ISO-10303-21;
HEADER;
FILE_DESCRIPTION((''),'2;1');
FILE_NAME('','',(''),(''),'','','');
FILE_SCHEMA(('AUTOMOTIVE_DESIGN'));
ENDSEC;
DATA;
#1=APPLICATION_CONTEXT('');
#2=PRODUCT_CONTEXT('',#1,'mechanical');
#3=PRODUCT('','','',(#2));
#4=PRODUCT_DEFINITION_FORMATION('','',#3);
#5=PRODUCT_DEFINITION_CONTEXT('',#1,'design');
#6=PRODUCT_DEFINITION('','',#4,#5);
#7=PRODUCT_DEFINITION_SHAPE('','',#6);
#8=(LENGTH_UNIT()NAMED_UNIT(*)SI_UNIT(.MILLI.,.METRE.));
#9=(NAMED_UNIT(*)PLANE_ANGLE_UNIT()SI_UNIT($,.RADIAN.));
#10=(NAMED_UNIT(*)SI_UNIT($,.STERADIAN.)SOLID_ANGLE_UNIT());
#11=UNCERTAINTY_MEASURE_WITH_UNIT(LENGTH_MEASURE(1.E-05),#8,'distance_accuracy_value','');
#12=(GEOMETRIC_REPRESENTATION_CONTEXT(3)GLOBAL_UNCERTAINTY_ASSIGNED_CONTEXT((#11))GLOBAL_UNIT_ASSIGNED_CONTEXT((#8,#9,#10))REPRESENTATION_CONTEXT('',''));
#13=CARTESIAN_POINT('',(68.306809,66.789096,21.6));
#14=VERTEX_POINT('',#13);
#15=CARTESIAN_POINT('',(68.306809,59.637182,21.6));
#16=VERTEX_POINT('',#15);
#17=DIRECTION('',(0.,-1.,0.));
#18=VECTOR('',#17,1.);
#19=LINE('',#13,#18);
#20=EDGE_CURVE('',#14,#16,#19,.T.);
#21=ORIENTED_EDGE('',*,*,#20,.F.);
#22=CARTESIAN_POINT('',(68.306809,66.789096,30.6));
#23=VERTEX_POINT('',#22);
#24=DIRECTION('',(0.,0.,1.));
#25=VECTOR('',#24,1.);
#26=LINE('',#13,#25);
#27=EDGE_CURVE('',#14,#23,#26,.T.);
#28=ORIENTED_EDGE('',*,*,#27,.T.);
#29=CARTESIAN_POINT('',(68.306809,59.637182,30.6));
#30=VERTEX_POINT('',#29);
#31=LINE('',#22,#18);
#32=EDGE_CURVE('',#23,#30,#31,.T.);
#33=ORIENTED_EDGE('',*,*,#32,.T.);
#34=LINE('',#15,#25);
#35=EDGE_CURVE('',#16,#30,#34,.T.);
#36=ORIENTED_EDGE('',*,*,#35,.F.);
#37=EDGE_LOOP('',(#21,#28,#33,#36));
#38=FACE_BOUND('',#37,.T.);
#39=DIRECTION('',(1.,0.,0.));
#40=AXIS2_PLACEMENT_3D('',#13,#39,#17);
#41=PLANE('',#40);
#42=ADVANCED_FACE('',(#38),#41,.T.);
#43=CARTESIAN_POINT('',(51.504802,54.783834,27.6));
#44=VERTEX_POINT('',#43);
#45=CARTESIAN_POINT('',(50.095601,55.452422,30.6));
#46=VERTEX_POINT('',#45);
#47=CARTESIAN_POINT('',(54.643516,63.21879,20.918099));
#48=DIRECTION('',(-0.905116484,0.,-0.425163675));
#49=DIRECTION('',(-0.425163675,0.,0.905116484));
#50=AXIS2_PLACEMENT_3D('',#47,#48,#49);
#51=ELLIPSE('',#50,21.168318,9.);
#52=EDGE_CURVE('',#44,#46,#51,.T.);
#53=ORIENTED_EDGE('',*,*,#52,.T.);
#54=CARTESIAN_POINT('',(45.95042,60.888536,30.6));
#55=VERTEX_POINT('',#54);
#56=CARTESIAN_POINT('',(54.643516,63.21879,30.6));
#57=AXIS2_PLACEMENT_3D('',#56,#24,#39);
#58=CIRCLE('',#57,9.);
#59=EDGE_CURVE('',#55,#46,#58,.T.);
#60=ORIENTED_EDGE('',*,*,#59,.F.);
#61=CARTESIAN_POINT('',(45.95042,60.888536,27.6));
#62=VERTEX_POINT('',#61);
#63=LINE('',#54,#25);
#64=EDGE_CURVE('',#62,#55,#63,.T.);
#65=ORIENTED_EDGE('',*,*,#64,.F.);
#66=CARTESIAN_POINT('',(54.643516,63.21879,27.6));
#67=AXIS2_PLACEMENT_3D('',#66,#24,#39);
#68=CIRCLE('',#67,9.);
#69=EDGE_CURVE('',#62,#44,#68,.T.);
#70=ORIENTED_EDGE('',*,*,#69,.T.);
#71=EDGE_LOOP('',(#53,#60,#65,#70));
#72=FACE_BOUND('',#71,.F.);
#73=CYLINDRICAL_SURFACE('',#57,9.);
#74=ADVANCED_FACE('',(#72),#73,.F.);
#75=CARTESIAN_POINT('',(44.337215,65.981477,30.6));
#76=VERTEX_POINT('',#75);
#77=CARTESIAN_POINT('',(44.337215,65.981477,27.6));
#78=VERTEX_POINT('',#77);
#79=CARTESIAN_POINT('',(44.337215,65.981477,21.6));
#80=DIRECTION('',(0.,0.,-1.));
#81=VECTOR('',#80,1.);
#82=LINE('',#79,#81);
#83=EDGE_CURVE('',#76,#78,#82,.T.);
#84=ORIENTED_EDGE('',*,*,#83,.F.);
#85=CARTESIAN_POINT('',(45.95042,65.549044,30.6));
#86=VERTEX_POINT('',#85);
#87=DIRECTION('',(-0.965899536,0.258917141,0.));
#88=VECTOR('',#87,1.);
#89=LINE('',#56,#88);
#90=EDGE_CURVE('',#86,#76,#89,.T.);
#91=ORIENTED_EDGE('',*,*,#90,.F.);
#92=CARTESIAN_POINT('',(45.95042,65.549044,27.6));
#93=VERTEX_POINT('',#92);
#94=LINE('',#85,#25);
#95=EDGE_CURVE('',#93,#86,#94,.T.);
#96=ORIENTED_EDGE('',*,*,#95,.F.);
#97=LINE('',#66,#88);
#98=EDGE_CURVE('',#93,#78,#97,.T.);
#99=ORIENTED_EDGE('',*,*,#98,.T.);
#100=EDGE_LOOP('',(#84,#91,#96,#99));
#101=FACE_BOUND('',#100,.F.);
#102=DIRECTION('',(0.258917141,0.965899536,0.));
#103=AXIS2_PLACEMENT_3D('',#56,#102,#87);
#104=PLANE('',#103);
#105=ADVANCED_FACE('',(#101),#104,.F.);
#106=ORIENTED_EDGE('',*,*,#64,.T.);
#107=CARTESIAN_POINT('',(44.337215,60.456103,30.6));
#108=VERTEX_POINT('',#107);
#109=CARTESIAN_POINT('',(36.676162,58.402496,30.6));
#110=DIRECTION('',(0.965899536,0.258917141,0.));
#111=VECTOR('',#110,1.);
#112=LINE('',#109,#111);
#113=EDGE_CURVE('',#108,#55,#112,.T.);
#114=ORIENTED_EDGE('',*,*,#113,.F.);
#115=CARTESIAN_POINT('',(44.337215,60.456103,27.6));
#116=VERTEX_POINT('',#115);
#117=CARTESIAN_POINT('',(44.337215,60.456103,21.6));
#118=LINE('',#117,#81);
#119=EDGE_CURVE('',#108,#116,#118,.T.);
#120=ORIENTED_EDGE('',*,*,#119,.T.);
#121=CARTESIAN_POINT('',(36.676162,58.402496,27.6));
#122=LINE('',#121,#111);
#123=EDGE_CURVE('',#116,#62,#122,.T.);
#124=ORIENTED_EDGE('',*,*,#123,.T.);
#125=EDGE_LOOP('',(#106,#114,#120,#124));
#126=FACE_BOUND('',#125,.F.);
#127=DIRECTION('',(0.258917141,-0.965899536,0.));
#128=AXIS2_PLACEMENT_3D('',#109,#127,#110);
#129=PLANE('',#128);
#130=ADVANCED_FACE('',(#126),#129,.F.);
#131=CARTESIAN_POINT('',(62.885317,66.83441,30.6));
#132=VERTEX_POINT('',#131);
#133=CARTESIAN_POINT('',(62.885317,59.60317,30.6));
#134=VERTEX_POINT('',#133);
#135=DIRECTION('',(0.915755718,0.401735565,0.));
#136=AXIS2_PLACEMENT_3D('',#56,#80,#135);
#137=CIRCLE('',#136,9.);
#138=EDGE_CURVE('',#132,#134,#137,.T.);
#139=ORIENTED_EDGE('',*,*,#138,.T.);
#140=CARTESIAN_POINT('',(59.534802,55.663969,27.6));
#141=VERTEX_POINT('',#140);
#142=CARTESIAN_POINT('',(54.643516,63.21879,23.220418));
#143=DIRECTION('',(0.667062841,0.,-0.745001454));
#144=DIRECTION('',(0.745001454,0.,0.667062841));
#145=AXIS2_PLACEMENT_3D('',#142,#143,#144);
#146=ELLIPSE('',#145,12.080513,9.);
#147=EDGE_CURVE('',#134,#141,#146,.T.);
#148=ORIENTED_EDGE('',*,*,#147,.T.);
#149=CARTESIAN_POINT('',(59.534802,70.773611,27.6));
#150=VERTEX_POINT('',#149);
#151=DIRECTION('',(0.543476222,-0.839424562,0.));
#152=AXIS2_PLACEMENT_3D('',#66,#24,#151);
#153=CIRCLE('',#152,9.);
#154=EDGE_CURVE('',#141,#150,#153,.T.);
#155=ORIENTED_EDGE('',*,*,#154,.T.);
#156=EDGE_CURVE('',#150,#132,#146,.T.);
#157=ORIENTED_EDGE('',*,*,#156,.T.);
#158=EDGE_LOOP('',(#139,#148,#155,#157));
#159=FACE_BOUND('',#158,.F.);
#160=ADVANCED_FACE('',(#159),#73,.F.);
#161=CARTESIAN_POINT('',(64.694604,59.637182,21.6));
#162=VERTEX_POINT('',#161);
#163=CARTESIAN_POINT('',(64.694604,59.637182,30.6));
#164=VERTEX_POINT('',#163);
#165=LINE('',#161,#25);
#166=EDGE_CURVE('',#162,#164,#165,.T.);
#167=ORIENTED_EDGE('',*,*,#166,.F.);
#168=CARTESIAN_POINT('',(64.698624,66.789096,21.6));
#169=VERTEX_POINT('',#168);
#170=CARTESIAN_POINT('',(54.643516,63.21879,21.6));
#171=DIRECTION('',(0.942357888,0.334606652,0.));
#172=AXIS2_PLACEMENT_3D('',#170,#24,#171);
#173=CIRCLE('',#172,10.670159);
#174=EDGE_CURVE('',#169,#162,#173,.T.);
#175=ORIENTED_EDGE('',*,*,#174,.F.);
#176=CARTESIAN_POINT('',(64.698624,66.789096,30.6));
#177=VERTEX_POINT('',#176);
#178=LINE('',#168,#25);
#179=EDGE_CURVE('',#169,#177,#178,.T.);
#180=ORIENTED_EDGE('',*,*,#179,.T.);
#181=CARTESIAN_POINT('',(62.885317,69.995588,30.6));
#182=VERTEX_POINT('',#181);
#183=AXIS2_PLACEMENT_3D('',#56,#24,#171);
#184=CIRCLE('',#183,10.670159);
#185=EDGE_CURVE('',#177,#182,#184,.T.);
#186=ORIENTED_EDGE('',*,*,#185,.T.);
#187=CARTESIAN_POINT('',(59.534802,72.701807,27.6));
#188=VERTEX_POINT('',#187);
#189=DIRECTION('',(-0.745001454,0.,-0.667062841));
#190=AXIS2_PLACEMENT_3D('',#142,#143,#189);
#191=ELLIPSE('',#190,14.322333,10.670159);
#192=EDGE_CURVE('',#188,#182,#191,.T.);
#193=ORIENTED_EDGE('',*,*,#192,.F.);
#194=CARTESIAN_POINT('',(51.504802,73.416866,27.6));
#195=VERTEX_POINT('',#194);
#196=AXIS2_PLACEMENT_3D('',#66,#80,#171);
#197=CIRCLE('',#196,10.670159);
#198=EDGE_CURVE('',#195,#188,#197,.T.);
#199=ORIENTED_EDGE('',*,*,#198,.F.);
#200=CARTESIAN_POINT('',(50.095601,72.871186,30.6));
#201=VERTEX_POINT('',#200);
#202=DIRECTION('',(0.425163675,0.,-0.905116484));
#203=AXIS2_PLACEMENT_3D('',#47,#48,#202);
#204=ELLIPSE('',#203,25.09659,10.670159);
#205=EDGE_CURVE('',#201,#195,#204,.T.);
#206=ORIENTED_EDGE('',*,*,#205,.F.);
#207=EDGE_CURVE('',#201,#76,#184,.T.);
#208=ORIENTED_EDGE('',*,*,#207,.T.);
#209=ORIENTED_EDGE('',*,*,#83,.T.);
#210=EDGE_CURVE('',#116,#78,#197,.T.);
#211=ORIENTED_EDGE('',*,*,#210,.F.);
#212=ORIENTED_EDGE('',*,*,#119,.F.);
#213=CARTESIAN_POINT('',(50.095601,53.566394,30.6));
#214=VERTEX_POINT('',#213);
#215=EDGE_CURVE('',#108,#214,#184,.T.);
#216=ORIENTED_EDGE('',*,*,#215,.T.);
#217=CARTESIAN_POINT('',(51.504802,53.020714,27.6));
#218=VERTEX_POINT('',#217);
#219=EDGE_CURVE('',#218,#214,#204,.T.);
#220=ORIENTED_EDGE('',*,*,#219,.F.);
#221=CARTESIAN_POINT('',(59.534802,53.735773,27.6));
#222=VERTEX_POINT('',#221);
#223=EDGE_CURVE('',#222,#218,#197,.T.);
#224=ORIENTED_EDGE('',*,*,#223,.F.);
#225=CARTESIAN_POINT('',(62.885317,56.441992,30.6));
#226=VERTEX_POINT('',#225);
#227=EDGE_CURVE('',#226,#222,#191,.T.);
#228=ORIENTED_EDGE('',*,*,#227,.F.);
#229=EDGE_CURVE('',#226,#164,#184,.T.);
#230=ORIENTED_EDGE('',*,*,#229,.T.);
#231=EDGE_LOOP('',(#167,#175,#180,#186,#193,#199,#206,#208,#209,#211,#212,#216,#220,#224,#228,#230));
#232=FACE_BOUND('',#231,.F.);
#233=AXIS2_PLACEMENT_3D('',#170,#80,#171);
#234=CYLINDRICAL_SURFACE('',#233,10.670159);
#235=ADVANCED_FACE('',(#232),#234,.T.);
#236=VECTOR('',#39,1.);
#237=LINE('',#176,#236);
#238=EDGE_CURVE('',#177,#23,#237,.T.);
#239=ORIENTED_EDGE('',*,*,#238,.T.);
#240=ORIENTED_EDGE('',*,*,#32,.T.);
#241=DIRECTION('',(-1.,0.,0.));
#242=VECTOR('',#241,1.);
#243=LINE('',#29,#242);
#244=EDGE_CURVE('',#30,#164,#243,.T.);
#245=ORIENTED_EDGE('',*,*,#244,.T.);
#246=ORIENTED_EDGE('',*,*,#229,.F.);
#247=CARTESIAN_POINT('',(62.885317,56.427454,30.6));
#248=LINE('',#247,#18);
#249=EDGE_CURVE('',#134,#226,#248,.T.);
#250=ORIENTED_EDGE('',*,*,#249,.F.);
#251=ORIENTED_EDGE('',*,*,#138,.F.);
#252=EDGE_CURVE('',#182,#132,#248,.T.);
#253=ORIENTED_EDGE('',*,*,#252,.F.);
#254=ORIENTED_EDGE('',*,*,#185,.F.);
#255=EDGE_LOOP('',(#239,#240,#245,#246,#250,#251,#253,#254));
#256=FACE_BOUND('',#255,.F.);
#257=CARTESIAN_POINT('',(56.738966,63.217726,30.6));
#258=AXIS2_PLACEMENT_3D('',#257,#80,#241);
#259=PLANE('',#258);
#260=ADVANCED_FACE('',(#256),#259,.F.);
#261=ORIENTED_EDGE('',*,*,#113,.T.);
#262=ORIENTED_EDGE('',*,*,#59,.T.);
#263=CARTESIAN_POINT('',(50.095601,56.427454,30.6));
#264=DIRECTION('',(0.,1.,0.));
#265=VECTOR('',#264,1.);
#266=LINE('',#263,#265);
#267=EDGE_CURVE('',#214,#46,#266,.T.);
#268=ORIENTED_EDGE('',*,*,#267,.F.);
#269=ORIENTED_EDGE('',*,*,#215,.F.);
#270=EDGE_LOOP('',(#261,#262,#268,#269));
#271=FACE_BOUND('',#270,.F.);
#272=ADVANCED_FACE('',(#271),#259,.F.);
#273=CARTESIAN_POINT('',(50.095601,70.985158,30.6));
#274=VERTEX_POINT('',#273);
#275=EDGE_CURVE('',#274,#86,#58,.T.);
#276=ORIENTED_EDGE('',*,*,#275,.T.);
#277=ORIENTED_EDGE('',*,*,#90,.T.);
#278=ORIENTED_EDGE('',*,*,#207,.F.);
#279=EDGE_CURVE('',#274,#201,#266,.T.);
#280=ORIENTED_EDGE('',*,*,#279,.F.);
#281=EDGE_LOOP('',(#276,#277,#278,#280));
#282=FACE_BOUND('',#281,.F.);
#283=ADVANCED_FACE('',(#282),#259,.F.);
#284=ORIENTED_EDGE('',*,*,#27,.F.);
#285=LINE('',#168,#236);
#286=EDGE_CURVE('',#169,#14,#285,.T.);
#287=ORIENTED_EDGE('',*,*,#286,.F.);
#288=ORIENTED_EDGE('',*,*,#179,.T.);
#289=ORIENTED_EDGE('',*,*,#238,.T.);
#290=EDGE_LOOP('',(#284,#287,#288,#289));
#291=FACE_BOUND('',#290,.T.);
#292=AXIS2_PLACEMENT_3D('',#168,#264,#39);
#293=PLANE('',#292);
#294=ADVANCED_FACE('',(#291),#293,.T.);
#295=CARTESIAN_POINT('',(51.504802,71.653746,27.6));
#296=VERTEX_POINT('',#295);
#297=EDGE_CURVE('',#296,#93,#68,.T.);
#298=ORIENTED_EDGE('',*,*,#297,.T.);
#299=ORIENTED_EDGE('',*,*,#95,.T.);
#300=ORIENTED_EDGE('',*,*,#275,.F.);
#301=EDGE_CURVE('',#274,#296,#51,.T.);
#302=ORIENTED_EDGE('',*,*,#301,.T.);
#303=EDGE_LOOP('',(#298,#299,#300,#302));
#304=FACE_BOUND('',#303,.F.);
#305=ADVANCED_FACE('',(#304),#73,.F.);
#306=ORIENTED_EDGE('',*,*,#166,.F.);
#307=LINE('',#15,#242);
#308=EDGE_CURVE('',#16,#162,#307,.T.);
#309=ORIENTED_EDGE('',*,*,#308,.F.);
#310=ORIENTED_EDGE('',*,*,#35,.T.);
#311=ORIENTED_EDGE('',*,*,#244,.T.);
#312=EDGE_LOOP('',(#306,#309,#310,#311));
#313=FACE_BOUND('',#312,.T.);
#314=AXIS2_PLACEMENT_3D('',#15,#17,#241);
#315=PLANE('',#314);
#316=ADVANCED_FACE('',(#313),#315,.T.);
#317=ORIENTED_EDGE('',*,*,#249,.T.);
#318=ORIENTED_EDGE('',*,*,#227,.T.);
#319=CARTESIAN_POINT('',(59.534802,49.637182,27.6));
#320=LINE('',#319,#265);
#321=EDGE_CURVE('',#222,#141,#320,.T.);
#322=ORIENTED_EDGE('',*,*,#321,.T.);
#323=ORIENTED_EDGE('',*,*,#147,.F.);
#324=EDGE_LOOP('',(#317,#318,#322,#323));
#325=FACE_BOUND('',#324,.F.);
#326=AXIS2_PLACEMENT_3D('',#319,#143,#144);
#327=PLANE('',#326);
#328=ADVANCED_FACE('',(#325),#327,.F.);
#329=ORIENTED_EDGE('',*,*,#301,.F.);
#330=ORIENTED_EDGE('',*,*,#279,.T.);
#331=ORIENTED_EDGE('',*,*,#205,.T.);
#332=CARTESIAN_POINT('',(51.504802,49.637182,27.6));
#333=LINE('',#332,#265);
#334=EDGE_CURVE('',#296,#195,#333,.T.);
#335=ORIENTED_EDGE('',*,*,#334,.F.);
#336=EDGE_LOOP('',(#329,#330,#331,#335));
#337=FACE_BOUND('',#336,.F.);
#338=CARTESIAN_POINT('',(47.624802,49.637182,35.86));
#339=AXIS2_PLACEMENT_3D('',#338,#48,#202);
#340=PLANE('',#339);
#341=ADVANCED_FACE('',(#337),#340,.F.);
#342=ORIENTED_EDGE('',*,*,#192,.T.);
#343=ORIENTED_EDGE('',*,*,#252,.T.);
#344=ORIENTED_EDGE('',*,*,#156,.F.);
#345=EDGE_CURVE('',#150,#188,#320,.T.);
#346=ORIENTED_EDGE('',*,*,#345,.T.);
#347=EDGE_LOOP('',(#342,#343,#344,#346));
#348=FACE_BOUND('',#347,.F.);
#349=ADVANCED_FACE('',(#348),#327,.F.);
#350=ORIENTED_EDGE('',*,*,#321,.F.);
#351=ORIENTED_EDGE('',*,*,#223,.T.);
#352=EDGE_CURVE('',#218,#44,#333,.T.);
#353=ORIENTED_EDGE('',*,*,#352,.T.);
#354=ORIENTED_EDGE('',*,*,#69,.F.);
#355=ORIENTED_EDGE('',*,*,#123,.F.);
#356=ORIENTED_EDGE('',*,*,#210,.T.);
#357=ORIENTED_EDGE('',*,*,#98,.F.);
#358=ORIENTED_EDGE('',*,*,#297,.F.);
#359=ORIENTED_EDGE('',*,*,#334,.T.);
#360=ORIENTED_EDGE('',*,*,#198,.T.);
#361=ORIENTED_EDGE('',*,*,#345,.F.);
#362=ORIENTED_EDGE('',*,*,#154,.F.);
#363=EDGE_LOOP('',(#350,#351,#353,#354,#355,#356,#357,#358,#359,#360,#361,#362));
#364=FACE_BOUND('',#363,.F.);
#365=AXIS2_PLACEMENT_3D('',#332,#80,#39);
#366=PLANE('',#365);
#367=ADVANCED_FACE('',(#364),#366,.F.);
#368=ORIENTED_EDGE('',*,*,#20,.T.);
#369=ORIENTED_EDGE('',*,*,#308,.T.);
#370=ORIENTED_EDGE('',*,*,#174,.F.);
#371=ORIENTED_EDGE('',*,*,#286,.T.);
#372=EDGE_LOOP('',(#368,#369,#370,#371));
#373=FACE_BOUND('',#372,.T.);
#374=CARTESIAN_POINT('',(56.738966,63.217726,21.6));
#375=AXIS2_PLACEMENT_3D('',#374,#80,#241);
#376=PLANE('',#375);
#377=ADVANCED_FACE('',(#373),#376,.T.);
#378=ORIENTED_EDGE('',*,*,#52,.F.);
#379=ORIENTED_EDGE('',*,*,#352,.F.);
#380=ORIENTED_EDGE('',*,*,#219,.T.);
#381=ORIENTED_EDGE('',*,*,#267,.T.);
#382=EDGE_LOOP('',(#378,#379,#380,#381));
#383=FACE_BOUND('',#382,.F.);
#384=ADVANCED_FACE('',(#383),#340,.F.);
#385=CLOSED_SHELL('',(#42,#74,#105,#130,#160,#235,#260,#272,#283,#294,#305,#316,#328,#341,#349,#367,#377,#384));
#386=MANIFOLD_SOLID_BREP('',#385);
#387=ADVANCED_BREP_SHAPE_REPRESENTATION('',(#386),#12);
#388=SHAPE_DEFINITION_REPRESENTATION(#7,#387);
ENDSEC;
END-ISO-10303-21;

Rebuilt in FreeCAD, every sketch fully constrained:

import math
import FreeCAD as App
import Part
import Sketcher
from FreeCAD import Vector

doc = App.newDocument("Part")
body = doc.addObject("PartDesign::Body", "Body")

# Sketch on XY plane
sketch1 = body.newObject("Sketcher::SketchObject", "Sketch")
sketch1.AttachmentSupport = (doc.getObject("XY_Plane"), [""])
sketch1.MapMode = "FlatFace"
sketch1.AttachmentOffset = App.Placement(Vector(0, 0, 1.6), App.Rotation())
sketch1.addGeometry([
    Part.LineSegment(Vector(68.3, 66.8, 0), Vector(64.7, 66.8, 0)),
    Part.ArcOfCircle(Part.Circle(Vector(54.6, 63.2, 0), Vector(0, 0, 1), 10.7), math.radians(20), math.radians(340)),
    Part.LineSegment(Vector(64.7, 59.6, 0), Vector(68.3, 59.6, 0)),
    Part.LineSegment(Vector(68.3, 59.6, 0), Vector(68.3, 66.8, 0)),
], False)
sketch1.addConstraint([
    Sketcher.Constraint("Coincident", 0, 2, 1, 1),
    Sketcher.Constraint("Coincident", 1, 2, 2, 1),
    Sketcher.Constraint("Coincident", 2, 2, 3, 1),
    Sketcher.Constraint("Coincident", 3, 2, 0, 1),
    Sketcher.Constraint("Horizontal", 0),
    Sketcher.Constraint("Horizontal", 2),
    Sketcher.Constraint("Vertical", 3),
    Sketcher.Constraint("Radius", 1, 10.670159),
    Sketcher.Constraint("DistanceX", 0, 2, 0, 1, 3.608185),
    Sketcher.Constraint("DistanceX", 2, 1, 2, 2, 3.612205),
    Sketcher.Constraint("DistanceY", 3, 1, 3, 2, 7.151914),
    Sketcher.Constraint("DistanceY", -1, 1, 1, 3, 63.21879),
    Sketcher.Constraint("DistanceX", -1, 1, 2, 2, 68.306809),
])
pad1 = body.newObject("PartDesign::Pad", "Pad")
pad1.Profile = sketch1
pad1.Length = 9

# Sketch on XY plane
sketch2 = body.newObject("Sketcher::SketchObject", "Sketch001")
sketch2.AttachmentSupport = (doc.getObject("XY_Plane"), [""])
sketch2.MapMode = "FlatFace"
sketch2.AttachmentOffset = App.Placement(Vector(0, 0, 10.6), App.Rotation())
sketch2.addGeometry(Part.Circle(Vector(55, 63, 0), Vector(0, 0, 1), 9), False)
sketch2.addConstraint([
    Sketcher.Constraint("Diameter", 0, 18.0),
    Sketcher.Constraint("DistanceY", -1, 1, 0, 3, 63.21879),
    Sketcher.Constraint("DistanceX", -1, 1, 0, 3, 54.643516),
])
pocket1 = body.newObject("PartDesign::Pocket", "Pocket")
pocket1.Profile = sketch2
pocket1.Length = 3

# Sketch on XZ plane
sketch3 = body.newObject("Sketcher::SketchObject", "Sketch002")
sketch3.AttachmentSupport = (doc.getObject("XZ_Plane"), [""])
sketch3.MapMode = "FlatFace"
sketch3.AttachmentOffset = App.Placement(Vector(0, 0, -49.637182), App.Rotation())
sketch3.addGeometry([
    Part.LineSegment(Vector(48, 16, 0), Vector(52, 8, 0)),
    Part.LineSegment(Vector(52, 8, 0), Vector(60, 8, 0)),
    Part.LineSegment(Vector(60, 8, 0), Vector(66, 13, 0)),
    Part.LineSegment(Vector(66, 13, 0), Vector(48, 16, 0)),
], False)
sketch3.addConstraint([
    Sketcher.Constraint("Coincident", 0, 2, 1, 1),
    Sketcher.Constraint("Coincident", 1, 2, 2, 1),
    Sketcher.Constraint("Coincident", 2, 2, 3, 1),
    Sketcher.Constraint("Coincident", 3, 2, 0, 1),
    Sketcher.Constraint("Horizontal", 1),
    Sketcher.Constraint("DistanceX", 1, 1, 1, 2, 8.03),
    Sketcher.Constraint("DistanceY", -1, 1, 0, 2, 7.6),
    Sketcher.Constraint("DistanceX", 1, 2, 2, 2, 6.5),
    Sketcher.Constraint("DistanceY", -1, 1, 2, 2, 13.42),
    Sketcher.Constraint("DistanceY", -1, 1, 3, 2, 15.86),
    Sketcher.Constraint("DistanceX", 3, 2, 0, 2, 3.88),
    Sketcher.Constraint("DistanceX", -1, 1, 0, 2, 51.504802),
])
pocket2 = body.newObject("PartDesign::Pocket", "Pocket001")
pocket2.Profile = sketch3
pocket2.Type = "ThroughAll"

# Sketch on XY plane
sketch4 = body.newObject("Sketcher::SketchObject", "Sketch003")
sketch4.AttachmentSupport = (doc.getObject("XY_Plane"), [""])
sketch4.MapMode = "FlatFace"
sketch4.AttachmentOffset = App.Placement(Vector(0, 0, 10.6), App.Rotation())
sketch4.addGeometry([
    Part.LineSegment(Vector(55, 63, 0), Vector(37, 68, 0)),
    Part.LineSegment(Vector(37, 68, 0), Vector(37, 58, 0)),
    Part.LineSegment(Vector(37, 58, 0), Vector(55, 63, 0)),
], False)
sketch4.addConstraint([
    Sketcher.Constraint("Coincident", 0, 2, 1, 1),
    Sketcher.Constraint("Coincident", 1, 2, 2, 1),
    Sketcher.Constraint("Coincident", 2, 2, 0, 1),
    Sketcher.Constraint("Vertical", 1),
    Sketcher.Constraint("Equal", 0, 2),
    Sketcher.Constraint("Distance", 0, 18.601679),
    Sketcher.Constraint("DistanceY", 1, 2, 1, 1, 9.632587),
    Sketcher.Constraint("DistanceY", -1, 1, 2, 2, 63.21879),
    Sketcher.Constraint("DistanceX", -1, 1, 0, 2, 36.676162),
])
pocket3 = body.newObject("PartDesign::Pocket", "Pocket002")
pocket3.Profile = sketch4
pocket3.Length = 3
body2 = doc.addObject("PartDesign::Body", "Body001")
doc.recompute()

body.Placement = App.Placement(Vector(0, 0, 20), App.Rotation(Vector(0, 0, 1), 0))
boolean = body2.newObject("PartDesign::Boolean", "Boolean")
boolean.Type = "Fuse"
boolean.addObjects([body])

doc.recompute()
